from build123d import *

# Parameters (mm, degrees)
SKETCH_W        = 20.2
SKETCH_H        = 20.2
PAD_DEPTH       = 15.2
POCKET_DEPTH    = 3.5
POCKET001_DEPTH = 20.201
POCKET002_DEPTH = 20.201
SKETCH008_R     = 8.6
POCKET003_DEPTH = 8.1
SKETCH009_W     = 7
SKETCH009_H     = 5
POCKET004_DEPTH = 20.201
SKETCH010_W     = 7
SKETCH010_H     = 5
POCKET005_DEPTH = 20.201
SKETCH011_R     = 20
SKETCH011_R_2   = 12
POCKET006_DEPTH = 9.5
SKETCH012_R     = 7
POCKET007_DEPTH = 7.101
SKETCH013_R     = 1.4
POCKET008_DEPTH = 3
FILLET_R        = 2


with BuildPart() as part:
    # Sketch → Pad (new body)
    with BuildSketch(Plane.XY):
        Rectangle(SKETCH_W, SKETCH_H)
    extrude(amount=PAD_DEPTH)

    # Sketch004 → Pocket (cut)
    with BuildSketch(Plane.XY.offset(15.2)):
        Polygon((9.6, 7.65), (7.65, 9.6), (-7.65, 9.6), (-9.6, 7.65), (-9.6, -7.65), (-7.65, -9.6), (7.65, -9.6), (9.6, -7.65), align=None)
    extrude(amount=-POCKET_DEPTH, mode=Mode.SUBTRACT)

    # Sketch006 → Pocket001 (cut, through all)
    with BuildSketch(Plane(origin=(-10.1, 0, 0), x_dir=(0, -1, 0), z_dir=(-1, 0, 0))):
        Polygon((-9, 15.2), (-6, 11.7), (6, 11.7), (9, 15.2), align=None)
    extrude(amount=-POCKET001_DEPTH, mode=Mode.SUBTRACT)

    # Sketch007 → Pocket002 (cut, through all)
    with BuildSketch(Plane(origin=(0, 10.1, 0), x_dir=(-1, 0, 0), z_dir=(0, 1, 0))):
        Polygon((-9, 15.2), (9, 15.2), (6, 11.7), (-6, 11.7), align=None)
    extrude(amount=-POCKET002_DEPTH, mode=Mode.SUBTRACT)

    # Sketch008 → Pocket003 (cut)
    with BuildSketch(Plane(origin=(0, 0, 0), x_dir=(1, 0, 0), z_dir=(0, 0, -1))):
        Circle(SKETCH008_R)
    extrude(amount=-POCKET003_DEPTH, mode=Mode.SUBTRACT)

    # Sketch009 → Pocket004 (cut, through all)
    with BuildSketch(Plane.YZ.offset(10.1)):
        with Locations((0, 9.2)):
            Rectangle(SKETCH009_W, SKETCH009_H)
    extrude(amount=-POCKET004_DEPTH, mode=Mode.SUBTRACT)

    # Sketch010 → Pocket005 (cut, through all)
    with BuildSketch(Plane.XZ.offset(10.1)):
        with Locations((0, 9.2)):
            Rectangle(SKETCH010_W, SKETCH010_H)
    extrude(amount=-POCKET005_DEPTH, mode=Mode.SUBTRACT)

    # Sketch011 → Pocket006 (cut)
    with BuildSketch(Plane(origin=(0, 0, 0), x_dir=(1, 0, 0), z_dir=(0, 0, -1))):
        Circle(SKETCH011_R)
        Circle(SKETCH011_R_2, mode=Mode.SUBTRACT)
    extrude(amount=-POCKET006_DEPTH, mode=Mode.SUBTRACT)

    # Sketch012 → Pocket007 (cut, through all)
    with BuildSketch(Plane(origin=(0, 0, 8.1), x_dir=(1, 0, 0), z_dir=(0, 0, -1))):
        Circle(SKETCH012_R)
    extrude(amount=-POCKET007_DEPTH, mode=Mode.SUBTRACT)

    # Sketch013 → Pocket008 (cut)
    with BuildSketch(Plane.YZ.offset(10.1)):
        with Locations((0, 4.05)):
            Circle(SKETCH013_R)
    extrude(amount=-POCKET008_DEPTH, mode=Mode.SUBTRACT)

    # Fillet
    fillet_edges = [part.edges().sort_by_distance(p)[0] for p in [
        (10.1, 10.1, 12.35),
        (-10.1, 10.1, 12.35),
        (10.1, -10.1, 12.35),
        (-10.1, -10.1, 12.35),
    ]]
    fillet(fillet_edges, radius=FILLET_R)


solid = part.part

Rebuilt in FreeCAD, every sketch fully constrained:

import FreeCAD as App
import Part
import Sketcher

V = App.Vector
Q = App.Units.Quantity


def edges_at(feature, points):
    """Names of the edges that pass closest to the given points."""
    edges = feature.Shape.Edges
    near = lambda p: min(range(len(edges)), key=lambda i: edges[i].distToShape(Part.Vertex(*p))[0])
    return sorted({f"Edge{near(p) + 1}" for p in points})

doc = App.newDocument("Part")
body = doc.addObject("PartDesign::Body", "Body")

# Sketch on XY plane
sketch1 = body.newObject("Sketcher::SketchObject", "Sketch")
sketch1.AttachmentSupport = (doc.getObject("XY_Plane"), [""])
sketch1.MapMode = "FlatFace"
sketch1.addGeometry([
    Part.LineSegment(V(-10.1, 10.1, 0), V(-10.1, -10.1, 0)),
    Part.LineSegment(V(-10.1, -10.1, 0), V(10.1, -10.1, 0)),
    Part.LineSegment(V(10.1, -10.1, 0), V(10.1, 10.1, 0)),
    Part.LineSegment(V(10.1, 10.1, 0), V(-10.1, 10.1, 0)),
], False)
sketch1.addConstraint([
    Sketcher.Constraint("Coincident", 0, 2, 1, 1),
    Sketcher.Constraint("Coincident", 1, 2, 2, 1),
    Sketcher.Constraint("Coincident", 2, 2, 3, 1),
    Sketcher.Constraint("Coincident", 3, 2, 0, 1),
    Sketcher.Constraint("Vertical", 0),
    Sketcher.Constraint("Horizontal", 1),
    Sketcher.Constraint("Vertical", 2),
    Sketcher.Constraint("Horizontal", 3),
    Sketcher.Constraint("Symmetric", 0, 2, 2, 2, -1, 1),
    Sketcher.Constraint("Equal", 3, 0),
    Sketcher.Constraint("DistanceX", 1, 1, 1, 2, Q("20.2 mm")),
])
pad1 = body.newObject("PartDesign::Pad", "Pad")
pad1.Profile = sketch1
pad1.Length = 15.2

# Sketch on XY plane
sketch2 = body.newObject("Sketcher::SketchObject", "Sketch001")
sketch2.AttachmentSupport = (doc.getObject("XY_Plane"), [""])
sketch2.MapMode = "FlatFace"
sketch2.AttachmentOffset = App.Placement(V(0, 0, 15.2), App.Rotation())
sketch2.addGeometry([
    Part.LineSegment(V(9.6, 7.65, 0), V(7.65, 9.6, 0)),  # 0
    Part.LineSegment(V(7.65, 9.6, 0), V(-7.65, 9.6, 0)),  # 1
    Part.LineSegment(V(-7.65, 9.6, 0), V(-9.6, 7.65, 0)),  # 2
    Part.LineSegment(V(-9.6, 7.65, 0), V(-9.6, -7.65, 0)),  # 3
    Part.LineSegment(V(-9.6, -7.65, 0), V(-7.65, -9.6, 0)),  # 4
    Part.LineSegment(V(-7.65, -9.6, 0), V(7.65, -9.6, 0)),  # 5
    Part.LineSegment(V(7.65, -9.6, 0), V(9.6, -7.65, 0)),  # 6
    Part.LineSegment(V(9.6, -7.65, 0), V(9.6, 7.65, 0)),  # 7
], False)
sketch2.addConstraint([
    Sketcher.Constraint("Coincident", 0, 2, 1, 1),
    Sketcher.Constraint("Coincident", 1, 2, 2, 1),
    Sketcher.Constraint("Coincident", 2, 2, 3, 1),
    Sketcher.Constraint("Coincident", 3, 2, 4, 1),
    Sketcher.Constraint("Coincident", 4, 2, 5, 1),
    Sketcher.Constraint("Coincident", 5, 2, 6, 1),
    Sketcher.Constraint("Coincident", 6, 2, 7, 1),
    Sketcher.Constraint("Coincident", 7, 2, 0, 1),
    Sketcher.Constraint("Horizontal", 1),
    Sketcher.Constraint("Vertical", 3),
    Sketcher.Constraint("Horizontal", 5),
    Sketcher.Constraint("Vertical", 7),
    Sketcher.Constraint("Symmetric", 0, 2, 4, 2, -1, 1),
    Sketcher.Constraint("Symmetric", 2, 2, 6, 2, -1, 1),
    Sketcher.Constraint("Perpendicular", 0, 2),
    Sketcher.Constraint("Perpendicular", 2, 4),
    Sketcher.Constraint("Perpendicular", 4, 6),
    Sketcher.Constraint("Horizontal", 3, 2, 6, 2),
    Sketcher.Constraint("Vertical", 1, 2, 4, 2),
    Sketcher.Constraint("Equal", 5, 3),
    Sketcher.Constraint("DistanceX", 1, 2, 1, 1, Q("15.3 mm")),
    Sketcher.Constraint("DistanceY", -1, 1, 0, 2, Q("9.6 mm")),
])
pocket1 = body.newObject("PartDesign::Pocket", "Pocket")
pocket1.Profile = sketch2
pocket1.Length = 3.5

# Sketch on YZ plane
sketch3 = body.newObject("Sketcher::SketchObject", "Sketch002")
sketch3.AttachmentSupport = (doc.getObject("YZ_Plane"), [""])
sketch3.MapMode = "FlatFace"
sketch3.AttachmentOffset = App.Placement(V(0, 0, -10.1), App.Rotation())
sketch3.addGeometry([
    Part.LineSegment(V(9, 15.2, 0), V(6, 11.7, 0)),
    Part.LineSegment(V(6, 11.7, 0), V(-6, 11.7, 0)),
    Part.LineSegment(V(-6, 11.7, 0), V(-9, 15.2, 0)),
    Part.LineSegment(V(-9, 15.2, 0), V(9, 15.2, 0)),
], False)
sketch3.addConstraint([
    Sketcher.Constraint("Coincident", 0, 2, 1, 1),
    Sketcher.Constraint("Coincident", 1, 2, 2, 1),
    Sketcher.Constraint("Coincident", 2, 2, 3, 1),
    Sketcher.Constraint("Coincident", 3, 2, 0, 1),
    Sketcher.Constraint("Horizontal", 1),
    Sketcher.Constraint("Horizontal", 3),
    Sketcher.Constraint("Equal", 0, 2),
    Sketcher.Constraint("DistanceX", 1, 2, 1, 1, Q("12 mm")),
    Sketcher.Constraint("DistanceX", 3, 1, 3, 2, Q("18 mm")),
    Sketcher.Constraint("DistanceX", -1, 1, 0, 2, Q("6 mm")),
    Sketcher.Constraint("DistanceY", -1, 1, 0, 2, Q("11.7 mm")),
    Sketcher.Constraint("DistanceY", -1, 1, 2, 2, Q("15.2 mm")),
])
pocket2 = body.newObject("PartDesign::Pocket", "Pocket001")
pocket2.Profile = sketch3
pocket2.Type = "ThroughAll"
pocket2.Reversed = True

# Sketch on XZ plane
sketch4 = body.newObject("Sketcher::SketchObject", "Sketch003")
sketch4.AttachmentSupport = (doc.getObject("XZ_Plane"), [""])
sketch4.MapMode = "FlatFace"
sketch4.AttachmentOffset = App.Placement(V(0, 0, -10.1), App.Rotation())
sketch4.addGeometry([
    Part.LineSegment(V(-9, 15.2, 0), V(9, 15.2, 0)),
    Part.LineSegment(V(9, 15.2, 0), V(6, 11.7, 0)),
    Part.LineSegment(V(6, 11.7, 0), V(-6, 11.7, 0)),
    Part.LineSegment(V(-6, 11.7, 0), V(-9, 15.2, 0)),
], False)
sketch4.addConstraint([
    Sketcher.Constraint("Coincident", 0, 2, 1, 1),
    Sketcher.Constraint("Coincident", 1, 2, 2, 1),
    Sketcher.Constraint("Coincident", 2, 2, 3, 1),
    Sketcher.Constraint("Coincident", 3, 2, 0, 1),
    Sketcher.Constraint("Horizontal", 0),
    Sketcher.Constraint("Horizontal", 2),
    Sketcher.Constraint("Equal", 1, 3),
    Sketcher.Constraint("DistanceX", 0, 1, 0, 2, Q("18 mm")),
    Sketcher.Constraint("DistanceX", 2, 2, 2, 1, Q("12 mm")),
    Sketcher.Constraint("DistanceX", -1, 1, 0, 2, Q("9 mm")),
    Sketcher.Constraint("DistanceY", -1, 1, 0, 2, Q("15.2 mm")),
    Sketcher.Constraint("DistanceY", -1, 1, 1, 2, Q("11.7 mm")),
])
pocket3 = body.newObject("PartDesign::Pocket", "Pocket002")
pocket3.Profile = sketch4
pocket3.Type = "ThroughAll"
pocket3.Reversed = True

# Sketch on XY plane
sketch5 = body.newObject("Sketcher::SketchObject", "Sketch004")
sketch5.AttachmentSupport = (doc.getObject("XY_Plane"), [""])
sketch5.MapMode = "FlatFace"
sketch5.addGeometry(Part.Circle(V(0, 0, 0), V(0, 0, 1), 8.6), False)
sketch5.addConstraint([
    Sketcher.Constraint("Coincident", 0, 3, -1, 1),
    Sketcher.Constraint("Diameter", 0, Q("17.2 mm")),
])
pocket4 = body.newObject("PartDesign::Pocket", "Pocket003")
pocket4.Profile = sketch5
pocket4.Length = 8.1
pocket4.Reversed = True

# Sketch on YZ plane
sketch6 = body.newObject("Sketcher::SketchObject", "Sketch005")
sketch6.AttachmentSupport = (doc.getObject("YZ_Plane"), [""])
sketch6.MapMode = "FlatFace"
sketch6.AttachmentOffset = App.Placement(V(0, 0, 10.1), App.Rotation())
sketch6.addGeometry([
    Part.LineSegment(V(-3.5, 11.7, 0), V(-3.5, 6.7, 0)),
    Part.LineSegment(V(-3.5, 6.7, 0), V(3.5, 6.7, 0)),
    Part.LineSegment(V(3.5, 6.7, 0), V(3.5, 11.7, 0)),
    Part.LineSegment(V(3.5, 11.7, 0), V(-3.5, 11.7, 0)),
], False)
sketch6.addConstraint([
    Sketcher.Constraint("Coincident", 0, 2, 1, 1),
    Sketcher.Constraint("Coincident", 1, 2, 2, 1),
    Sketcher.Constraint("Coincident", 2, 2, 3, 1),
    Sketcher.Constraint("Coincident", 3, 2, 0, 1),
    Sketcher.Constraint("Vertical", 0),
    Sketcher.Constraint("Horizontal", 1),
    Sketcher.Constraint("Vertical", 2),
    Sketcher.Constraint("Horizontal", 3),
    Sketcher.Constraint("DistanceX", 1, 1, 1, 2, Q("7 mm")),
    Sketcher.Constraint("DistanceY", 0, 2, 0, 1, Q("5 mm")),
    Sketcher.Constraint("DistanceX", 0, 2, -1, 1, Q("3.5 mm")),
    Sketcher.Constraint("DistanceY", -1, 1, 0, 2, Q("6.7 mm")),
])
pocket5 = body.newObject("PartDesign::Pocket", "Pocket004")
pocket5.Profile = sketch6
pocket5.Type = "ThroughAll"

# Sketch on XZ plane
sketch7 = body.newObject("Sketcher::SketchObject", "Sketch006")
sketch7.AttachmentSupport = (doc.getObject("XZ_Plane"), [""])
sketch7.MapMode = "FlatFace"
sketch7.AttachmentOffset = App.Placement(V(0, 0, 10.1), App.Rotation())
sketch7.addGeometry([
    Part.LineSegment(V(-3.5, 11.7, 0), V(-3.5, 6.7, 0)),
    Part.LineSegment(V(-3.5, 6.7, 0), V(3.5, 6.7, 0)),
    Part.LineSegment(V(3.5, 6.7, 0), V(3.5, 11.7, 0)),
    Part.LineSegment(V(3.5, 11.7, 0), V(-3.5, 11.7, 0)),
], False)
sketch7.addConstraint([
    Sketcher.Constraint("Coincident", 0, 2, 1, 1),
    Sketcher.Constraint("Coincident", 1, 2, 2, 1),
    Sketcher.Constraint("Coincident", 2, 2, 3, 1),
    Sketcher.Constraint("Coincident", 3, 2, 0, 1),
    Sketcher.Constraint("Vertical", 0),
    Sketcher.Constraint("Horizontal", 1),
    Sketcher.Constraint("Vertical", 2),
    Sketcher.Constraint("Horizontal", 3),
    Sketcher.Constraint("DistanceX", 1, 1, 1, 2, Q("7 mm")),
    Sketcher.Constraint("DistanceY", 0, 2, 0, 1, Q("5 mm")),
    Sketcher.Constraint("DistanceX", 0, 2, -1, 1, Q("3.5 mm")),
    Sketcher.Constraint("DistanceY", -1, 1, 0, 2, Q("6.7 mm")),
])
pocket6 = body.newObject("PartDesign::Pocket", "Pocket005")
pocket6.Profile = sketch7
pocket6.Type = "ThroughAll"

# Sketch on XY plane
sketch8 = body.newObject("Sketcher::SketchObject", "Sketch007")
sketch8.AttachmentSupport = (doc.getObject("XY_Plane"), [""])
sketch8.MapMode = "FlatFace"
sketch8.addGeometry([
    Part.Circle(V(0, 0, 0), V(0, 0, 1), 20),
    Part.Circle(V(0, 0, 0), V(0, 0, 1), 12),
], False)
sketch8.addConstraint([
    Sketcher.Constraint("Coincident", 0, 3, -1, 1),
    Sketcher.Constraint("Coincident", 1, 3, -1, 1),
    Sketcher.Constraint("Diameter", 0, Q("40 mm")),
    Sketcher.Constraint("Diameter", 1, Q("24 mm")),
])
pocket7 = body.newObject("PartDesign::Pocket", "Pocket006")
pocket7.Profile = sketch8
pocket7.Length = 9.5
pocket7.Reversed = True

# Sketch on XY plane
sketch9 = body.newObject("Sketcher::SketchObject", "Sketch008")
sketch9.AttachmentSupport = (doc.getObject("XY_Plane"), [""])
sketch9.MapMode = "FlatFace"
sketch9.AttachmentOffset = App.Placement(V(0, 0, 8.1), App.Rotation())
sketch9.addGeometry(Part.Circle(V(0, 0, 0), V(0, 0, 1), 7), False)
sketch9.addConstraint([
    Sketcher.Constraint("Coincident", 0, 3, -1, 1),
    Sketcher.Constraint("Diameter", 0, Q("14 mm")),
])
pocket8 = body.newObject("PartDesign::Pocket", "Pocket007")
pocket8.Profile = sketch9
pocket8.Type = "ThroughAll"
pocket8.Reversed = True

# Sketch on YZ plane
sketch10 = body.newObject("Sketcher::SketchObject", "Sketch009")
sketch10.AttachmentSupport = (doc.getObject("YZ_Plane"), [""])
sketch10.MapMode = "FlatFace"
sketch10.AttachmentOffset = App.Placement(V(0, 0, 10.1), App.Rotation())
sketch10.addGeometry(Part.Circle(V(0, 4.05, 0), V(0, 0, 1), 1.4), False)
sketch10.addConstraint([
    Sketcher.Constraint("PointOnObject", 0, 3, -2),
    Sketcher.Constraint("Diameter", 0, Q("2.8 mm")),
    Sketcher.Constraint("DistanceY", -1, 1, 0, 3, Q("4.05 mm")),
])
pocket9 = body.newObject("PartDesign::Pocket", "Pocket008")
pocket9.Profile = sketch10
pocket9.Length = 3
doc.recompute()

fillet = body.newObject("PartDesign::Fillet", "Fillet")
fillet.Base = (pocket9, edges_at(pocket9, [
    (10.1, 10.1, 12.35),
    (-10.1, 10.1, 12.35),
    (10.1, -10.1, 12.35),
    (-10.1, -10.1, 12.35),
]))
fillet.Radius = 2

doc.recompute()
